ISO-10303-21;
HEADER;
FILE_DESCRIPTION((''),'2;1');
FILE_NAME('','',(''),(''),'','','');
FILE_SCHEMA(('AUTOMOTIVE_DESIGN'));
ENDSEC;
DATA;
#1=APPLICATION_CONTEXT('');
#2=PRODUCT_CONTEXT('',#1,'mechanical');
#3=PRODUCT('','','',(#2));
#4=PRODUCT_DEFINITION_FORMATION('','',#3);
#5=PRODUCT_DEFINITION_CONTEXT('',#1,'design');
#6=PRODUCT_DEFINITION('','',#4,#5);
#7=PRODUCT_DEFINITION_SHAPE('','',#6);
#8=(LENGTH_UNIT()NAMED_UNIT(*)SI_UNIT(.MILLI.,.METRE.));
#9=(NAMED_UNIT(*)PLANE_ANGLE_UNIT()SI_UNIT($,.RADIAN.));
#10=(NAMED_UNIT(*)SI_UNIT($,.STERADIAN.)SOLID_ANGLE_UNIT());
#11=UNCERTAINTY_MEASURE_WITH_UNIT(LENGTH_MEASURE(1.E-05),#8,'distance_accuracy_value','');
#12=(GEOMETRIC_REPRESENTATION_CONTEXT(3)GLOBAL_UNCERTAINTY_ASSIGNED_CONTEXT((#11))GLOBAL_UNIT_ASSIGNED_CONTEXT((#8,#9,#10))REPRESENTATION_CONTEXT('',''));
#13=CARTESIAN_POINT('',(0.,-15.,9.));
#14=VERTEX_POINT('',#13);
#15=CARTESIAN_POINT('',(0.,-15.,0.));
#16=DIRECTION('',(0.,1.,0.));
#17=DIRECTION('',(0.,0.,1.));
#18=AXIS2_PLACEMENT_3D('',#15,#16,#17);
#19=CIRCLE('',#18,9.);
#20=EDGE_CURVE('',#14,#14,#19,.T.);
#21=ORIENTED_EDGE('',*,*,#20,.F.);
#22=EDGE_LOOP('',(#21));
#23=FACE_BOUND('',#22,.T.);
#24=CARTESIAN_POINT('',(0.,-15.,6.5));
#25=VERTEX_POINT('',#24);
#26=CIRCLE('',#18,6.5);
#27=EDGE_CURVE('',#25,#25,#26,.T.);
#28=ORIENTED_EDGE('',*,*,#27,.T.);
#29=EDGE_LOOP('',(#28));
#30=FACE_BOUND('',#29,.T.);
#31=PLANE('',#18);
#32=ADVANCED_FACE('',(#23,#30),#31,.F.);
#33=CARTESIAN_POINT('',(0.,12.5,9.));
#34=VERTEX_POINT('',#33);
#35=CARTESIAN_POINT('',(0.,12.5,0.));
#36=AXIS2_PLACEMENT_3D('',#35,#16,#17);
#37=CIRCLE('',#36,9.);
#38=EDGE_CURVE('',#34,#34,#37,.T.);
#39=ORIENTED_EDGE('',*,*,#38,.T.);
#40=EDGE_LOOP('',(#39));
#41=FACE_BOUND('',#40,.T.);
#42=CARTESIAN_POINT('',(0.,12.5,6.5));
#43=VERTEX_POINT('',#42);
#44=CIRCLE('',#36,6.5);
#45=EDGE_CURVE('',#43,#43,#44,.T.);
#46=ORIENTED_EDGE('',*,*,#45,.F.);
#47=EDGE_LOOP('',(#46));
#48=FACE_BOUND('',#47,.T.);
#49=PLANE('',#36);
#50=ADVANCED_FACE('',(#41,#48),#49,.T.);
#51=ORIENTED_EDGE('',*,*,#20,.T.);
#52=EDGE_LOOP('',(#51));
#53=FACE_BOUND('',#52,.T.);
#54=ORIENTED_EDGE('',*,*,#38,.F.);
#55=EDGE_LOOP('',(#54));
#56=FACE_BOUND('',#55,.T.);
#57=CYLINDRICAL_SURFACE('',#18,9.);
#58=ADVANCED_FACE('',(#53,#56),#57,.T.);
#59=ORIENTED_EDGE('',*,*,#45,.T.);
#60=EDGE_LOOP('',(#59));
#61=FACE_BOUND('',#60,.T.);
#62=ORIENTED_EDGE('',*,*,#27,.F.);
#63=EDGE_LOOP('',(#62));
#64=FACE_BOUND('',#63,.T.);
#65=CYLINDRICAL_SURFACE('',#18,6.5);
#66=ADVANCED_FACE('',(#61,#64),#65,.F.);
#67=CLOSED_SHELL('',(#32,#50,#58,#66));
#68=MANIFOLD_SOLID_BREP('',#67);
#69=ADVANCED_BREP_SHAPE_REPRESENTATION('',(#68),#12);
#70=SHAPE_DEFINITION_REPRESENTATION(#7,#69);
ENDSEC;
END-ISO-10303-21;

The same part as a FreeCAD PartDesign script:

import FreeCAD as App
import Part
import Sketcher
Q = App.Units.Quantity

doc = App.newDocument("Part")
params = doc.addObject("Spreadsheet::Sheet", "Params")
for row, (alias, value) in enumerate([
    ("sketch1_diameter", "18 mm"),
    ("sketch1_diameter2", "13 mm"),
    ("pad1_length", "12.5 mm"),
    ("pad1_length2", "15 mm"),
], start=1):
    params.set(f"A{row}", alias)
    params.set(f"B{row}", "=" + value)
    params.setAlias(f"B{row}", alias)

body = doc.addObject("PartDesign::Body", "Body")

# Sketch on XZ plane
sketch1 = doc.addObject("Sketcher::SketchObject", "Sketch")
body.addObject(sketch1)
sketch1.AttachmentSupport = (doc.XZ_Plane, [""])
sketch1.MapMode = "FlatFace"
sketch1.addGeometry([
    Part.Circle(App.Vector(0, 0, 0), App.Vector(0, 0, 1), 9),
    Part.Circle(App.Vector(0, 0, 0), App.Vector(0, 0, 1), 6),
], False)
sketch1.addConstraint([
    Sketcher.Constraint("Coincident", 0, 3, -1, 1),
    Sketcher.Constraint("Coincident", 1, 3, -1, 1),
    Sketcher.Constraint("Diameter", 0, Q("18 mm")),
    Sketcher.Constraint("Diameter", 1, Q("13 mm")),
])
sketch1.setExpression("Constraints[2]", "Params.sketch1_diameter")
sketch1.setExpression("Constraints[3]", "Params.sketch1_diameter2")
pad1 = doc.addObject("PartDesign::Pad", "Pad")
body.addObject(pad1)
pad1.Profile = sketch1
pad1.Type = "TwoLengths"
pad1.setExpression("Length", "Params.pad1_length")
pad1.setExpression("Length2", "Params.pad1_length2")
pad1.Reversed = True

doc.recompute()
